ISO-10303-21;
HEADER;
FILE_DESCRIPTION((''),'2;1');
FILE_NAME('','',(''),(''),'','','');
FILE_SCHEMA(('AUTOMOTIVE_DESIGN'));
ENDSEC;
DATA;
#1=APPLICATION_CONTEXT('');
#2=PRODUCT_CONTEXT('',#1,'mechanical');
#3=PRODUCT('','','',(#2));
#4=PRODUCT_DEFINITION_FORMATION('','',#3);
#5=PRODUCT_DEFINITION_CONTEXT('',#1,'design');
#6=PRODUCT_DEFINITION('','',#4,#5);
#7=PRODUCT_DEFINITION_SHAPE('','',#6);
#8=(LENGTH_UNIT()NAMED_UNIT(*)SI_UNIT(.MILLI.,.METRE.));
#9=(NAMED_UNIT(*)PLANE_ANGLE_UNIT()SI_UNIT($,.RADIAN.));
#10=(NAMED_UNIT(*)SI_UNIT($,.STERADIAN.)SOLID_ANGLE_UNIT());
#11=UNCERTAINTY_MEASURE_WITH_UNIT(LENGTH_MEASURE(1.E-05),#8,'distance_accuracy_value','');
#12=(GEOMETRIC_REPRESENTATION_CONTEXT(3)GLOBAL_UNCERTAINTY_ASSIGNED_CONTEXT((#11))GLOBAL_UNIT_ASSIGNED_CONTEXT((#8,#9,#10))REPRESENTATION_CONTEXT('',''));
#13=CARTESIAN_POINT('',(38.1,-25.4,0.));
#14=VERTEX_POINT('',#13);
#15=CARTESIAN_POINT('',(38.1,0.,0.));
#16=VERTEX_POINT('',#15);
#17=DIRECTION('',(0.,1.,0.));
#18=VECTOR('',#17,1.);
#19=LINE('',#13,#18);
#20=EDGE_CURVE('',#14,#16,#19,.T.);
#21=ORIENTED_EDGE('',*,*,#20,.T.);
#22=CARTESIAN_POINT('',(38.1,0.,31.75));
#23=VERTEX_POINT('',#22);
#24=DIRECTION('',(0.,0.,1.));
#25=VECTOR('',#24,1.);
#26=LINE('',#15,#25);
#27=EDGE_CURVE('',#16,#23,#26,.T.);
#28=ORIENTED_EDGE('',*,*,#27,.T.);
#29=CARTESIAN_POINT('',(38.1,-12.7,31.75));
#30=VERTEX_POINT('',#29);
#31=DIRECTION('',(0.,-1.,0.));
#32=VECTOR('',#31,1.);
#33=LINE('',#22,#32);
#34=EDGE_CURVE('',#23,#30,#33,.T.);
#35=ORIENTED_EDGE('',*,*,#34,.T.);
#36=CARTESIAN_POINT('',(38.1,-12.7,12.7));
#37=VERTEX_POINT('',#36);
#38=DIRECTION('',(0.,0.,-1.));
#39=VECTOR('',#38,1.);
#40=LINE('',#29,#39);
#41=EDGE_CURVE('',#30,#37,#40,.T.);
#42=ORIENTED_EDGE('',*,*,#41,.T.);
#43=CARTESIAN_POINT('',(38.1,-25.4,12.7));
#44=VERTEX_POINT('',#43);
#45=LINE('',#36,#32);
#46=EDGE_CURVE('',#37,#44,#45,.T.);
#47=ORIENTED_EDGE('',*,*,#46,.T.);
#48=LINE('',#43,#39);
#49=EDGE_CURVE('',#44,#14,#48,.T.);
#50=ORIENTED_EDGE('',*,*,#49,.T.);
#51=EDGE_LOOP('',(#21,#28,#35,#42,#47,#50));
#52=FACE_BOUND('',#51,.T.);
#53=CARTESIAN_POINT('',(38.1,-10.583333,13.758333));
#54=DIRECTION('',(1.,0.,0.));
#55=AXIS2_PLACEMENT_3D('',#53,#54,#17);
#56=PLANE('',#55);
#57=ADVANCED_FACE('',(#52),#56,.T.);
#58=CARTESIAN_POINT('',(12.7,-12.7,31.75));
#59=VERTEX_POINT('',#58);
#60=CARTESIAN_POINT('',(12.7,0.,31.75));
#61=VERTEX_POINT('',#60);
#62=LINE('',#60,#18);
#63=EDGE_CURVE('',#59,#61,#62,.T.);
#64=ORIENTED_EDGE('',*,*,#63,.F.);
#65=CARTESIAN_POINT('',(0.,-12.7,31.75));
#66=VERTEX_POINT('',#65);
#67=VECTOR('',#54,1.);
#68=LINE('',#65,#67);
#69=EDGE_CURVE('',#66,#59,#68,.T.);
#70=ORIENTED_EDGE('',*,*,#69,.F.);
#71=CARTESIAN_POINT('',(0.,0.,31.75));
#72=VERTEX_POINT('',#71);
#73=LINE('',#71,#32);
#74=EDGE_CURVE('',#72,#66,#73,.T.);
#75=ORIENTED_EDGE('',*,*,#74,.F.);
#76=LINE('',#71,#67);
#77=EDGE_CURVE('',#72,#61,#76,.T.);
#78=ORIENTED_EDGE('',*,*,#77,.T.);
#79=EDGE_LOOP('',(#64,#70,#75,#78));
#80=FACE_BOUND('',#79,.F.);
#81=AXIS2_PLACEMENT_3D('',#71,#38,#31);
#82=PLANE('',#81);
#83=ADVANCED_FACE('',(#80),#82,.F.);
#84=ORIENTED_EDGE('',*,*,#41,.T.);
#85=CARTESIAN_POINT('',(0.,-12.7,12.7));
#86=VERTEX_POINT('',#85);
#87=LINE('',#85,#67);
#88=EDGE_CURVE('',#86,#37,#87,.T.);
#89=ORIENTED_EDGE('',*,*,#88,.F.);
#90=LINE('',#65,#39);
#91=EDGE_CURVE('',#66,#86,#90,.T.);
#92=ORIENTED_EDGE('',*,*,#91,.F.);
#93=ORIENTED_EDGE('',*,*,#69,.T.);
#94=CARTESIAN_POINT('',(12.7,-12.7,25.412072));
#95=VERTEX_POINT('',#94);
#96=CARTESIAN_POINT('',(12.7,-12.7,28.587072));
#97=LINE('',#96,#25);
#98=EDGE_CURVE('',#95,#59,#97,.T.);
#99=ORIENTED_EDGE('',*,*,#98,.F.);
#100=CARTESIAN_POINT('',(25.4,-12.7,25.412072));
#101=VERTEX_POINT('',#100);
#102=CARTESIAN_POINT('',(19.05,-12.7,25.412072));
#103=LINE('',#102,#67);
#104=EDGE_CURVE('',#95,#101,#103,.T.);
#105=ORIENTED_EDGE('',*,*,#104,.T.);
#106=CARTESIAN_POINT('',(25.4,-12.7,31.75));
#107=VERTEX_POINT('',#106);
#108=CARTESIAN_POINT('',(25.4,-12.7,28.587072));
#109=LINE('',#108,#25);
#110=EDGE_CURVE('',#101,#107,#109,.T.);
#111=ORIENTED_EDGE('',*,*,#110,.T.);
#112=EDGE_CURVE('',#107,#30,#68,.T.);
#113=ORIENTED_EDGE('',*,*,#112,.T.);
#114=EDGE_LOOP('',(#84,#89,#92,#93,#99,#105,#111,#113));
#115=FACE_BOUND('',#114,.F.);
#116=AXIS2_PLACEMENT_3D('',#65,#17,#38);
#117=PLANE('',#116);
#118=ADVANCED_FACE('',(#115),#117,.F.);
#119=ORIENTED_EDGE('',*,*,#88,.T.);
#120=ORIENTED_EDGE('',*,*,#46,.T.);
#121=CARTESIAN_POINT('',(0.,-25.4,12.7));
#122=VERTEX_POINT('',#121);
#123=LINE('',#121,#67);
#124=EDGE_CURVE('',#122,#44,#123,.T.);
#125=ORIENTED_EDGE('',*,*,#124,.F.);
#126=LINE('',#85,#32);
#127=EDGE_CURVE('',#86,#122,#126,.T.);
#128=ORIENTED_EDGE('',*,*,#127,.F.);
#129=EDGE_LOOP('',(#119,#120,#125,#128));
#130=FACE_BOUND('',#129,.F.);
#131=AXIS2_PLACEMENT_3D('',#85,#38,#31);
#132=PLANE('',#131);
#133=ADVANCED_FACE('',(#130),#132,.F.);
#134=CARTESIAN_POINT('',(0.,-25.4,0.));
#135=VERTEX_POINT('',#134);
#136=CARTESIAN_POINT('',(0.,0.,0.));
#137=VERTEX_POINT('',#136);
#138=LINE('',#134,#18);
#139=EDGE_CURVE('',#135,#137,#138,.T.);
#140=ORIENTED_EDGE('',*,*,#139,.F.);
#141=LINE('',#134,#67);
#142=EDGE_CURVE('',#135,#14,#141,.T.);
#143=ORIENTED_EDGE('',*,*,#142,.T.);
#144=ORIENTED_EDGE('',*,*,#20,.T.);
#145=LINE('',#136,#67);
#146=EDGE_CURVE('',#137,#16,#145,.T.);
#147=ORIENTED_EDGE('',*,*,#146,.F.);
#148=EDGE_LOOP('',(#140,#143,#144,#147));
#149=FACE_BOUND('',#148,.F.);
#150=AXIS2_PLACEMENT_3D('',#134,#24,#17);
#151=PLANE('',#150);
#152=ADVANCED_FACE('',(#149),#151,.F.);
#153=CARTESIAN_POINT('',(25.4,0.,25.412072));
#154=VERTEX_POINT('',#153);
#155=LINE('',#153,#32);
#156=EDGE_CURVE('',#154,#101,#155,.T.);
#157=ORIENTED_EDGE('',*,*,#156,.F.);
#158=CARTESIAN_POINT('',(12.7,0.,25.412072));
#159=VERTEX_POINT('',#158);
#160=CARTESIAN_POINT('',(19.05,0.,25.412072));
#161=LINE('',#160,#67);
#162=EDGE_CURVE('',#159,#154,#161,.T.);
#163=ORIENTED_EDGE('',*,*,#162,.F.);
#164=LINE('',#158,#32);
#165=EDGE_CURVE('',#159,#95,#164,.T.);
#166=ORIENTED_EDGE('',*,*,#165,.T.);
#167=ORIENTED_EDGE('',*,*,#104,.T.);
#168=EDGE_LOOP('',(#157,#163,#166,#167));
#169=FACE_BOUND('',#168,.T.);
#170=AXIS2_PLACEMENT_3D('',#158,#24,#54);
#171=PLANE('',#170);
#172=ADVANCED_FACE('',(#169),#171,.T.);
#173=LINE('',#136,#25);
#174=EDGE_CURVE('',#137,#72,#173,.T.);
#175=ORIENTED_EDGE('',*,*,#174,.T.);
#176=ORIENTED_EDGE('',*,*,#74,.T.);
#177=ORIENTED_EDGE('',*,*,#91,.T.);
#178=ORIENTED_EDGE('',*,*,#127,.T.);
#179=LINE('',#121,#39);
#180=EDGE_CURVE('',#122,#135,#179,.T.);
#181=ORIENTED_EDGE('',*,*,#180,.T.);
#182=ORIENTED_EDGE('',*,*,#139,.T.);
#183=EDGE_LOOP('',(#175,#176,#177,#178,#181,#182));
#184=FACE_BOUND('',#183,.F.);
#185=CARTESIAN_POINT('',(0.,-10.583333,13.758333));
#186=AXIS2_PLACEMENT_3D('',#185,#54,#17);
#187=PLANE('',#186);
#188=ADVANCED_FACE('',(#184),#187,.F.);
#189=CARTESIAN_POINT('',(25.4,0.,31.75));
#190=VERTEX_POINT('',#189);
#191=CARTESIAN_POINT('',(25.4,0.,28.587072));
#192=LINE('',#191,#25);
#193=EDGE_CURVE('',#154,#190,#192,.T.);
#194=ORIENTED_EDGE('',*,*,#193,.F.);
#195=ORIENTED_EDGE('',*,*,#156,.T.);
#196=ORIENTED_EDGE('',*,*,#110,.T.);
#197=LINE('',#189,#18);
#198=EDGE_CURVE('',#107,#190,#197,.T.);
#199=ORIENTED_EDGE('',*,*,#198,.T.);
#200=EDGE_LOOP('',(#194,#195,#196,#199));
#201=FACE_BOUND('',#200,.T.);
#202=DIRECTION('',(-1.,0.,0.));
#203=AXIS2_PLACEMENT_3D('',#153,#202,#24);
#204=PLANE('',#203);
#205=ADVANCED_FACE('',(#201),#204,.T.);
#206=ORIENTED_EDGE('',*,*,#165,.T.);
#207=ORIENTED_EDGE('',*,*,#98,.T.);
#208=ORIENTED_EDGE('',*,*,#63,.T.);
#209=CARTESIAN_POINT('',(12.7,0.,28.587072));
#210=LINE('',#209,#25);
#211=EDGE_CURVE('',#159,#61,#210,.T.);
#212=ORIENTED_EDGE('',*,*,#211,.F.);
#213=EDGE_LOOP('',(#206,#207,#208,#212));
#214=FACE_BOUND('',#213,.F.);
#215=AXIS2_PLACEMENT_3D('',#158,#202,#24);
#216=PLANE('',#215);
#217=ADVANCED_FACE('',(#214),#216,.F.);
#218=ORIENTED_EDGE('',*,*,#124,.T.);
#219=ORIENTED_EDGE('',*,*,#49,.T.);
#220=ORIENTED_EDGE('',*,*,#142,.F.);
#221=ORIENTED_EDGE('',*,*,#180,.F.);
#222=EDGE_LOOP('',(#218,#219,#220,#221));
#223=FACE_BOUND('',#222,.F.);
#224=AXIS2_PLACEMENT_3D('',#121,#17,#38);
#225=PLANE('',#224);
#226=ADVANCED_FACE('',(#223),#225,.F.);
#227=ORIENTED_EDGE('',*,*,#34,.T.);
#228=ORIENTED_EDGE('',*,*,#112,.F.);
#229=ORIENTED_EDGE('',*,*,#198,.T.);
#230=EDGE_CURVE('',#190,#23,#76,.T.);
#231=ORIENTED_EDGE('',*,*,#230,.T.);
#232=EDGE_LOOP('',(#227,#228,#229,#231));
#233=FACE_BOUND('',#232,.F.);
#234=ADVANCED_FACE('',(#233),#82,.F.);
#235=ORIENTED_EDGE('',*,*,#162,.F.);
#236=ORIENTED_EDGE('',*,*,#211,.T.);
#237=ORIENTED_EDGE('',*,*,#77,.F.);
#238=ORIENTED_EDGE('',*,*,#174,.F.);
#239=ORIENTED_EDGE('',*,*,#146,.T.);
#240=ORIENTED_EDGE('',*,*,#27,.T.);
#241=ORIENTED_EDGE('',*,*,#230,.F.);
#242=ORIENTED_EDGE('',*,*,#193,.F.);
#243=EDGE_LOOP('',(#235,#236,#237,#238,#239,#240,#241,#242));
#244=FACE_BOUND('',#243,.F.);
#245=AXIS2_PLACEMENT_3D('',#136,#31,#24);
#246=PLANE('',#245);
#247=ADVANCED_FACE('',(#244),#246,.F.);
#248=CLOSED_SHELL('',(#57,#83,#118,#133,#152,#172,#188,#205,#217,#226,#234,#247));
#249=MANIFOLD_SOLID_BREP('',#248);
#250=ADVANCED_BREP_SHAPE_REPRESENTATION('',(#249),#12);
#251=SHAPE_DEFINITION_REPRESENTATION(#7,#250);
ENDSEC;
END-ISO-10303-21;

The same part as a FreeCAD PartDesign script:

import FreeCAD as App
import Part
import Sketcher
Q = App.Units.Quantity


def add_polygon(sketch, points):
    """Adds a closed chain of lines whose ends are joined by coincident constraints."""
    first, n = sketch.GeometryCount, len(points)
    for a, b in zip(points, points[1:] + points[:1]):
        sketch.addGeometry(Part.LineSegment(App.Vector(*a, 0), App.Vector(*b, 0)), False)
    for i in range(n):
        sketch.addConstraint(Sketcher.Constraint("Coincident", first + i, 2, first + (i + 1) % n, 1))

doc = App.newDocument("Part")
params = doc.addObject("Spreadsheet::Sheet", "Params")
for row, (alias, value) in enumerate([
    ("sketch1_width", "1 in"),
    ("sketch1_height", "1.25 in"),
    ("pad1_length", "1.5 in"),
    ("sketch2_width", "0.5 in"),
    ("sketch2_height", "0.25 in"),
    ("pocket1_length", "0.5 in"),
], start=1):
    params.set(f"A{row}", alias)
    params.set(f"B{row}", "=" + value)
    params.setAlias(f"B{row}", alias)

body = doc.addObject("PartDesign::Body", "Body")

# Sketch on YZ plane
sketch1 = doc.addObject("Sketcher::SketchObject", "Sketch")
body.addObject(sketch1)
sketch1.AttachmentSupport = (doc.YZ_Plane, [""])
sketch1.MapMode = "FlatFace"
add_polygon(sketch1, [(0, 0), (0, 32), (-13, 32), (-13, 13), (-25, 13), (-25, 0)])  # lines 0-5
sketch1.addConstraint([
    Sketcher.Constraint("Vertical", 0),
    Sketcher.Constraint("Horizontal", 1),
    Sketcher.Constraint("Vertical", 2),
    Sketcher.Constraint("Horizontal", 3),
    Sketcher.Constraint("Vertical", 4),
    Sketcher.Constraint("Horizontal", 5),
    Sketcher.Constraint("Coincident", 5, 2, -1, 1),
    Sketcher.Constraint("Equal", 1, 3),
    Sketcher.Constraint("Equal", 3, 4),
    Sketcher.Constraint("DistanceX", 5, 1, 5, 2, Q("1 in")),
    Sketcher.Constraint("DistanceY", 0, 1, 0, 2, Q("1.25 in")),
])
sketch1.setExpression("Constraints[15]", "Params.sketch1_width")
sketch1.setExpression("Constraints[16]", "Params.sketch1_height")
pad1 = doc.addObject("PartDesign::Pad", "Pad")
body.addObject(pad1)
pad1.Profile = sketch1
pad1.setExpression("Length", "Params.pad1_length")

# Sketch on XZ plane
sketch2 = doc.addObject("Sketcher::SketchObject", "Sketch001")
body.addObject(sketch2)
sketch2.AttachmentSupport = (doc.XZ_Plane, [""])
sketch2.MapMode = "FlatFace"
add_polygon(sketch2, [(13, 32), (13, 25), (25, 25), (25, 32)])  # lines 0-3
sketch2.addConstraint([
    Sketcher.Constraint("Vertical", 0),
    Sketcher.Constraint("Horizontal", 1),
    Sketcher.Constraint("Vertical", 2),
    Sketcher.Constraint("Horizontal", 3),
    Sketcher.Constraint("DistanceX", 1, 1, 1, 2, Q("0.5 in")),
    Sketcher.Constraint("DistanceX", -1, 1, 1, 2, Q("1 in")),
    Sketcher.Constraint("DistanceY", 0, 2, 0, 1, Q("0.25 in")),
    Sketcher.Constraint("DistanceY", -1, 1, 0, 2, Q("25.412072 mm")),
])
sketch2.setExpression("Constraints[8]", "Params.sketch2_width")
sketch2.setExpression("Constraints[10]", "Params.sketch2_height")
pocket1 = doc.addObject("PartDesign::Pocket", "Pocket")
body.addObject(pocket1)
pocket1.Profile = sketch2
pocket1.setExpression("Length", "Params.pocket1_length")
pocket1.Reversed = True

doc.recompute()
